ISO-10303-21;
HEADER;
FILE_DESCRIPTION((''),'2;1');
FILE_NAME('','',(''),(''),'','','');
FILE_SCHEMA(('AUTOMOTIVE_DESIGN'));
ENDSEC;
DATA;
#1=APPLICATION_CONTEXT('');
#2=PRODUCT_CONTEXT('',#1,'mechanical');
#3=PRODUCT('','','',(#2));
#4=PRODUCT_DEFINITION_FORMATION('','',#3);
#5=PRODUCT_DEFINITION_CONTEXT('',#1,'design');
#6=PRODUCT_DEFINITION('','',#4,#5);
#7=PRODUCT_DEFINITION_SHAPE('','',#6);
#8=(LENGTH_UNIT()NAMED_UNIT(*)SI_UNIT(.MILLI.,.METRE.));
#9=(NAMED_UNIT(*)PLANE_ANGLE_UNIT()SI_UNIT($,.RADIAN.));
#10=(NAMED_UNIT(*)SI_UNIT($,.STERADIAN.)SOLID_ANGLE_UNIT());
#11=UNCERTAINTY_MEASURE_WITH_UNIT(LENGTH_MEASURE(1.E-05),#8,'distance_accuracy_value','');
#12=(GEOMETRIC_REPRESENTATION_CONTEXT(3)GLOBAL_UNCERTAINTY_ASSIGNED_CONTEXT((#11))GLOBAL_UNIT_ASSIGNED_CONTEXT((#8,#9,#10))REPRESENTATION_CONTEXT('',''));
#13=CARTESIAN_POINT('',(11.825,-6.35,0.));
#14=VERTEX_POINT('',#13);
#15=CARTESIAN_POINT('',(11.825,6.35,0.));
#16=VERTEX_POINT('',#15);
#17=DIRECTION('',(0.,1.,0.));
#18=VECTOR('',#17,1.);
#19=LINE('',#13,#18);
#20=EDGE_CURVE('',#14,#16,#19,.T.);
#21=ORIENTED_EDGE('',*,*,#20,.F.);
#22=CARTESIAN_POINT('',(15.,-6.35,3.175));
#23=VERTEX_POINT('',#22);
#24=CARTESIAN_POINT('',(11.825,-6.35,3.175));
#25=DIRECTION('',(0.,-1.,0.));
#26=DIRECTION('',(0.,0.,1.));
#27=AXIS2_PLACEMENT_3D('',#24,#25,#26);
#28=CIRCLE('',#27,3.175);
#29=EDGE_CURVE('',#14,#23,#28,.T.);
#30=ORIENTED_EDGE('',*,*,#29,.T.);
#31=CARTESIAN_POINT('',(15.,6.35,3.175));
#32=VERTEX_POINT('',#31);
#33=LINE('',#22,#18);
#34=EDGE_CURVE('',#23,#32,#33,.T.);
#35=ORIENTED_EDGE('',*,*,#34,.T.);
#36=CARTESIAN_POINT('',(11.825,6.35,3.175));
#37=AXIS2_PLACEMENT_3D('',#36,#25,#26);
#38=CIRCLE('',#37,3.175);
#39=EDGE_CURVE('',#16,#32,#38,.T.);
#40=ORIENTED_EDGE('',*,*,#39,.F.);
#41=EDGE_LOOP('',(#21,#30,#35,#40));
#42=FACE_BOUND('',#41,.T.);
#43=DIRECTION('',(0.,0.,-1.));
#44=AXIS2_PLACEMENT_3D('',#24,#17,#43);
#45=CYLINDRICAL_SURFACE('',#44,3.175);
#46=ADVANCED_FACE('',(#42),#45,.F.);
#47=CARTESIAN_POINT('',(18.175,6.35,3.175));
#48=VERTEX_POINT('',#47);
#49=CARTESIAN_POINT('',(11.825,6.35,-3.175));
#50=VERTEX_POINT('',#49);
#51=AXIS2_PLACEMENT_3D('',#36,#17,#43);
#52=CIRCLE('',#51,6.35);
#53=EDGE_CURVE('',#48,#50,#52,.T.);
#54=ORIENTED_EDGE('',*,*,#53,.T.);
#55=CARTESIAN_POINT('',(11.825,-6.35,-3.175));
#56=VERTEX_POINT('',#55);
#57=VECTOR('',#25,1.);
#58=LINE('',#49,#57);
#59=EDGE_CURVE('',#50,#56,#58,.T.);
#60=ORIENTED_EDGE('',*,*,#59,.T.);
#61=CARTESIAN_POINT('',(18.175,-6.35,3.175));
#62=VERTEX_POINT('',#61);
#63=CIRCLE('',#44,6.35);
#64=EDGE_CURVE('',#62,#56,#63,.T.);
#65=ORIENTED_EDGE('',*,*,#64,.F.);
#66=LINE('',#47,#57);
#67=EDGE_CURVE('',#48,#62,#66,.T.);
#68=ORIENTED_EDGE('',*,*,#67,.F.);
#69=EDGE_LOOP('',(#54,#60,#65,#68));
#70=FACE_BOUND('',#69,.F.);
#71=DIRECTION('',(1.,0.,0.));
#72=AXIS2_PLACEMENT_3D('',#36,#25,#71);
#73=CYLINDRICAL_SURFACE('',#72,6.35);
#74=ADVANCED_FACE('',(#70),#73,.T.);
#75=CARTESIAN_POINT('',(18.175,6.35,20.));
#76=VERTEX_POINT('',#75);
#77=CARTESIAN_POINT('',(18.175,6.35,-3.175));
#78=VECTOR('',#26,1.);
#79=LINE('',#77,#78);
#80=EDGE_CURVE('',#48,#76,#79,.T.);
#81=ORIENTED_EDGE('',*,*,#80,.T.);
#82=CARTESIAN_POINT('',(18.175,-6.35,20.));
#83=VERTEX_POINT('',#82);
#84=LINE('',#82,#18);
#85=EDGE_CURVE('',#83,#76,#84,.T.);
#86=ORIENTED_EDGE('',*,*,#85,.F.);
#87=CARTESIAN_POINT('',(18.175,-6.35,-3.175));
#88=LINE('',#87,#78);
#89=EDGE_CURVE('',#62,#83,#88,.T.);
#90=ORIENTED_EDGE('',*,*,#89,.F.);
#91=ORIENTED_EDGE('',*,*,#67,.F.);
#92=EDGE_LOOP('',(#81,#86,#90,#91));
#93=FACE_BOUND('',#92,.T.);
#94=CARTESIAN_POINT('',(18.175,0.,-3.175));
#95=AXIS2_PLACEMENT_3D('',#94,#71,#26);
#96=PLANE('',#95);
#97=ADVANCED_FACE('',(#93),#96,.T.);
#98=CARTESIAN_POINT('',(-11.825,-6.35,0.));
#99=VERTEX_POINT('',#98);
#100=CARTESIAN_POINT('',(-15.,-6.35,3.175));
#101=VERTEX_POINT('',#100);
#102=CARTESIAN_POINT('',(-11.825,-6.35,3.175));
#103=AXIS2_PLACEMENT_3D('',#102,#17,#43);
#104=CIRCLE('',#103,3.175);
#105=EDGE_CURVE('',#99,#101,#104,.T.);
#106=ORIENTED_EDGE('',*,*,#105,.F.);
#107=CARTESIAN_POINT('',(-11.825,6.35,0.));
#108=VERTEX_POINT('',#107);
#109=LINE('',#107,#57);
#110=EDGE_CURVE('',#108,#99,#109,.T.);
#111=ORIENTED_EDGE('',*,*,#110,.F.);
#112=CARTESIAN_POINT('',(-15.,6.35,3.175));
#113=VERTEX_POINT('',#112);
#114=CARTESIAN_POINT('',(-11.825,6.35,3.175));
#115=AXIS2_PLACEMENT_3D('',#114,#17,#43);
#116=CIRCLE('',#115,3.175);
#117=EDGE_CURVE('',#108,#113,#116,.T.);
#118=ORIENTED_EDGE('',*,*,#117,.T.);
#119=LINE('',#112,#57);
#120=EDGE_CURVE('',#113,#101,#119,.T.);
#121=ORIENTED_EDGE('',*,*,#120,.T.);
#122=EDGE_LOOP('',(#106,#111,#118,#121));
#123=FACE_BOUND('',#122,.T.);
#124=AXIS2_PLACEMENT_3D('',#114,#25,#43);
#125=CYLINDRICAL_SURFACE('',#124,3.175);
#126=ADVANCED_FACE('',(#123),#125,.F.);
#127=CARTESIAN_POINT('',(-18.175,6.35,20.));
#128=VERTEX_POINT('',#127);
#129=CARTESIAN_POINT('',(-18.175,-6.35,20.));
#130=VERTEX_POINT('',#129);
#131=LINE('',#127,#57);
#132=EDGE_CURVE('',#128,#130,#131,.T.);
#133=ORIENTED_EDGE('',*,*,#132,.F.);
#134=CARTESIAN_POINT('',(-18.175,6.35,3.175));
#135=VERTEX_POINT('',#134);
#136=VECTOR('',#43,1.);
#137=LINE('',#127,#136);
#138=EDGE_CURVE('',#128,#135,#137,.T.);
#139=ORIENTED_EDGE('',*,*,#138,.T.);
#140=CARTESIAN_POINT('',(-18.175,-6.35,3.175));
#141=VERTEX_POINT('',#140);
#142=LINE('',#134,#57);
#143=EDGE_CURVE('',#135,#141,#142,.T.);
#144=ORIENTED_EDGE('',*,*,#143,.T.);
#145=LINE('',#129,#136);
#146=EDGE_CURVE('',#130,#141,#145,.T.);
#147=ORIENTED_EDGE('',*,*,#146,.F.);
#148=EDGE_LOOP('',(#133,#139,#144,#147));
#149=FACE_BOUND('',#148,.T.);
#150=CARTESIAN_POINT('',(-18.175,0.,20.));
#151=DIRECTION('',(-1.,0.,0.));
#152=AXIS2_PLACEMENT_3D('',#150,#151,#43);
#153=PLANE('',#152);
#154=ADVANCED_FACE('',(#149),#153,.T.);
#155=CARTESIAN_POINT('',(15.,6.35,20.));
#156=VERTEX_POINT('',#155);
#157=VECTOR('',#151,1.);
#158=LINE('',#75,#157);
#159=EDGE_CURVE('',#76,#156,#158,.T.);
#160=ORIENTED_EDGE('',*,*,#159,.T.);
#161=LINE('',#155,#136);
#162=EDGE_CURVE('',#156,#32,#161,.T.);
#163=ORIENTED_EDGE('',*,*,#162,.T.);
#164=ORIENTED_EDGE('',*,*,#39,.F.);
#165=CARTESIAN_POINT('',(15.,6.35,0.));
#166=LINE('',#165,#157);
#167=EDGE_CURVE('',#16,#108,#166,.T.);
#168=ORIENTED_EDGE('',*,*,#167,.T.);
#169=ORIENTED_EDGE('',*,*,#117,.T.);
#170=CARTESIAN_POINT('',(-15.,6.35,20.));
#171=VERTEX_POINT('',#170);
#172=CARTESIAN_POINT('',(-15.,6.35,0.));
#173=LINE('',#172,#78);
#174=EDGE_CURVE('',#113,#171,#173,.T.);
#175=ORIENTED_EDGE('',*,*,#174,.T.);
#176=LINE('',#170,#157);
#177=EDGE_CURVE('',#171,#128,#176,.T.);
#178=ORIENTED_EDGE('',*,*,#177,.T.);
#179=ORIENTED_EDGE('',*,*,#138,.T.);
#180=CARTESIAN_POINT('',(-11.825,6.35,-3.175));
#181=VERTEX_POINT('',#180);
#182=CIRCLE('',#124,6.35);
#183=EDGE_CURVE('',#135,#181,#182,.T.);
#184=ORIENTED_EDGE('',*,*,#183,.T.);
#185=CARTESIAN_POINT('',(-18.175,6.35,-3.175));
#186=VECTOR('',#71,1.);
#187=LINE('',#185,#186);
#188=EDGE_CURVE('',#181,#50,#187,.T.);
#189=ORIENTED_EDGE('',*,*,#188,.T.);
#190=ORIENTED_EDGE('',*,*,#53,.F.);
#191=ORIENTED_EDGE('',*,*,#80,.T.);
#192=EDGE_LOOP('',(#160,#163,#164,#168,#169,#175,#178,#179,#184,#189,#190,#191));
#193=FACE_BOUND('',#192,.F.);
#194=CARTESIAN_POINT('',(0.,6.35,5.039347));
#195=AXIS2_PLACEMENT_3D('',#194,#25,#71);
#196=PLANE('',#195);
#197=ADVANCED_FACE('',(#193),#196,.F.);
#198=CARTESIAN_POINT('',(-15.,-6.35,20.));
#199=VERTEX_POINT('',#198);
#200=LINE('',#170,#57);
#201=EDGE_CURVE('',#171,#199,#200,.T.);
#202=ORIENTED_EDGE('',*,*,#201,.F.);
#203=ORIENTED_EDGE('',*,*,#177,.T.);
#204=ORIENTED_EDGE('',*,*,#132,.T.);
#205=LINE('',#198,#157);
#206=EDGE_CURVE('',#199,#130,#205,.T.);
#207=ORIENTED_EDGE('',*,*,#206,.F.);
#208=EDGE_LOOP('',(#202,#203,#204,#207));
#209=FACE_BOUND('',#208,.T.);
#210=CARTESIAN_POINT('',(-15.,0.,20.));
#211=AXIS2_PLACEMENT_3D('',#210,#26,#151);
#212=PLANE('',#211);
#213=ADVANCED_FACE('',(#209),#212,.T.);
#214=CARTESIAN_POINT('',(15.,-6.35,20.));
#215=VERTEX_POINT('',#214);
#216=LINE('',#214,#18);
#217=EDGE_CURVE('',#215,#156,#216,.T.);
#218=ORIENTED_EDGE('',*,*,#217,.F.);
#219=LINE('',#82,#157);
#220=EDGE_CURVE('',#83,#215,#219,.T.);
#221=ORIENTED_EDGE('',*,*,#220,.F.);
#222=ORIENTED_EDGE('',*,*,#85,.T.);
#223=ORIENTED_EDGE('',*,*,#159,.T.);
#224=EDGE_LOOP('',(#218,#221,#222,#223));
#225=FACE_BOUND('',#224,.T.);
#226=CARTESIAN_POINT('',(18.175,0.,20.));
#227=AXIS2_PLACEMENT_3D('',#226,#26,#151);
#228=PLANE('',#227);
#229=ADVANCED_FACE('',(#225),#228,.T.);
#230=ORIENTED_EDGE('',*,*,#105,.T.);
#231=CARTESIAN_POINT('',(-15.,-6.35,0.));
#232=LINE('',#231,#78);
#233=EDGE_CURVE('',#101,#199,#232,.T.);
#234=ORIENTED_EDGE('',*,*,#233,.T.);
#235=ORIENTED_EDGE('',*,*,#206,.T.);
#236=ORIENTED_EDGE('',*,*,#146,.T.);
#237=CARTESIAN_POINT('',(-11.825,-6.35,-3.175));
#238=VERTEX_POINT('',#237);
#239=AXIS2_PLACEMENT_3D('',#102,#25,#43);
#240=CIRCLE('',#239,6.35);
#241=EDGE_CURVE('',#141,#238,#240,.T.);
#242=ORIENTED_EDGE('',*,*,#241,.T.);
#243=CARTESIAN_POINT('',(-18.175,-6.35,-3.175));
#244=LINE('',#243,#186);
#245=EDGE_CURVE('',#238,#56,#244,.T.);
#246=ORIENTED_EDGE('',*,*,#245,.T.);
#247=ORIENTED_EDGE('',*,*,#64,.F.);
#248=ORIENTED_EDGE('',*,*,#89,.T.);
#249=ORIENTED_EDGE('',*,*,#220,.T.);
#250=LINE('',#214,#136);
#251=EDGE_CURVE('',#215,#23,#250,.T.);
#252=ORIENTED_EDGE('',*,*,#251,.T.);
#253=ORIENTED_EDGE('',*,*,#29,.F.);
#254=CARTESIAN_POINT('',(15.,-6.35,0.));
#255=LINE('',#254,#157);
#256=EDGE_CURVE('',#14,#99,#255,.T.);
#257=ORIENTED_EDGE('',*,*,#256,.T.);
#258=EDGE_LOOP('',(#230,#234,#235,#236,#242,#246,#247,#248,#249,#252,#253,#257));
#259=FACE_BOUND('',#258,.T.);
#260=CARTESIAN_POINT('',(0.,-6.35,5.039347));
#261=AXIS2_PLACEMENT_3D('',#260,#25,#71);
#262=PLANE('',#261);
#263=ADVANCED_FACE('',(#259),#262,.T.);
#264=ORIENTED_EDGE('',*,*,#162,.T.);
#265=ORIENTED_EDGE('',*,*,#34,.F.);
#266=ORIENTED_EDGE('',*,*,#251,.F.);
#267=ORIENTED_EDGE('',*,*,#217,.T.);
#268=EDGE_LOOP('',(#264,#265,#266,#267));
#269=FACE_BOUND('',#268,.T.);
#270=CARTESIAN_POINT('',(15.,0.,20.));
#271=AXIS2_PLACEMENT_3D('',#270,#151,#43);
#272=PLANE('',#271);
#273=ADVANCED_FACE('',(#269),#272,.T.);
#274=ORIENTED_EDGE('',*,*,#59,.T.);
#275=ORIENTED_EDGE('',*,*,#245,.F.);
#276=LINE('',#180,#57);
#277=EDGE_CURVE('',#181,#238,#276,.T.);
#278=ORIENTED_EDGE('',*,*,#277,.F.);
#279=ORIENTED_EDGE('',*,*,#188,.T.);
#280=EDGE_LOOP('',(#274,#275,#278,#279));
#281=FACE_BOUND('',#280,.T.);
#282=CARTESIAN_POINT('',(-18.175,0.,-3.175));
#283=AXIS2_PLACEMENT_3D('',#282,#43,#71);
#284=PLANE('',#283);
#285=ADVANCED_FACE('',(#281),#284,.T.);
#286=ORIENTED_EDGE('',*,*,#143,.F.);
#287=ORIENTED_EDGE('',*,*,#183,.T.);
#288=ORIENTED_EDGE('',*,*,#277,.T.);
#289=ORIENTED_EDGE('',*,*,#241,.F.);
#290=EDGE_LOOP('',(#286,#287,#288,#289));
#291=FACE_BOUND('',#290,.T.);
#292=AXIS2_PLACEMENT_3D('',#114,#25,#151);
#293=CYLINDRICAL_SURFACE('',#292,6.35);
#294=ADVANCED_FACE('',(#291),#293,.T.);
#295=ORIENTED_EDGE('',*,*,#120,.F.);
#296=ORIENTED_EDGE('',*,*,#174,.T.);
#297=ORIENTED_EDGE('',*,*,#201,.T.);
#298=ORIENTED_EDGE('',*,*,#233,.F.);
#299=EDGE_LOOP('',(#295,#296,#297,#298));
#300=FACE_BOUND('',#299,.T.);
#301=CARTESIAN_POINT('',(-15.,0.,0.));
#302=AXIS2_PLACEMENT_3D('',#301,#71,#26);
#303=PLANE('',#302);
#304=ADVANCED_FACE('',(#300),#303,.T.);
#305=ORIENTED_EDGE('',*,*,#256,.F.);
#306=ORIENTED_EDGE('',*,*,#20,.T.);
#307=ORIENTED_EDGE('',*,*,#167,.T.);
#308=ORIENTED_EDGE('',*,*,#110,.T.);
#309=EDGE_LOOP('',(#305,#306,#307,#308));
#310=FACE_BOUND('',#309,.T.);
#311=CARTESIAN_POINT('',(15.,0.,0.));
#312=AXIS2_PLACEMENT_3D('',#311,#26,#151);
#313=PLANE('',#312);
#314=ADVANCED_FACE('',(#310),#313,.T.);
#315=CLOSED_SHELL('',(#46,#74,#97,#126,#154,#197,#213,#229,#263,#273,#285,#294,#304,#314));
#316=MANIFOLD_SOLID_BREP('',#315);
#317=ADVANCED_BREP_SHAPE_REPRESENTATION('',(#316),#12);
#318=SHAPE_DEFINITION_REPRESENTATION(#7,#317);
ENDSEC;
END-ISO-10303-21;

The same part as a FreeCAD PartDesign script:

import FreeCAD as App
import Part
import Sketcher

V = App.Vector


def edges_at(feature, points):
    """Names of the edges that pass closest to the given points."""
    edges = feature.Shape.Edges
    near = lambda p: min(range(len(edges)), key=lambda i: edges[i].distToShape(Part.Vertex(*p))[0])
    return sorted({f"Edge{near(p) + 1}" for p in points})

doc = App.newDocument("Part")
params = doc.addObject("Spreadsheet::Sheet", "Params")
for row, (alias, value) in enumerate([
    ("sketch1_width", "30 mm"),
    ("sketch1_height", "20 mm"),
    ("sketch1_width2", "36.35 mm"),
    ("pad1_length", "12.7 mm"),
    ("fillet_radius", "3.175 mm"),
    ("fillet2_radius", "6.35 mm"),
], start=1):
    params.set(f"A{row}", alias)
    params.set(f"B{row}", "=" + value)
    params.setAlias(f"B{row}", alias)

body = doc.addObject("PartDesign::Body", "Body")

# Sketch on XZ plane
sketch1 = body.newObject("Sketcher::SketchObject", "Sketch")
sketch1.AttachmentSupport = (doc.getObject("XZ_Plane"), [""])
sketch1.MapMode = "FlatFace"
sketch1.addGeometry([
    Part.LineSegment(V(15, 0, 0), V(-15, 0, 0)),  # 0
    Part.LineSegment(V(-15, 0, 0), V(-15, 20, 0)),  # 1
    Part.LineSegment(V(-15, 20, 0), V(-18.175, 20, 0)),  # 2
    Part.LineSegment(V(-18.175, 20, 0), V(-18.175, -3.175, 0)),  # 3
    Part.LineSegment(V(-18.175, -3.175, 0), V(18.175, -3.175, 0)),  # 4
    Part.LineSegment(V(18.175, -3.175, 0), V(18.175, 20, 0)),  # 5
    Part.LineSegment(V(18.175, 20, 0), V(15, 20, 0)),  # 6
    Part.LineSegment(V(15, 20, 0), V(15, 0, 0)),  # 7
], False)
sketch1.addConstraint([
    Sketcher.Constraint("Coincident", 0, 2, 1, 1),
    Sketcher.Constraint("Coincident", 1, 2, 2, 1),
    Sketcher.Constraint("Coincident", 2, 2, 3, 1),
    Sketcher.Constraint("Coincident", 3, 2, 4, 1),
    Sketcher.Constraint("Coincident", 4, 2, 5, 1),
    Sketcher.Constraint("Coincident", 5, 2, 6, 1),
    Sketcher.Constraint("Coincident", 6, 2, 7, 1),
    Sketcher.Constraint("Coincident", 7, 2, 0, 1),
    Sketcher.Constraint("Horizontal", 0),
    Sketcher.Constraint("Vertical", 1),
    Sketcher.Constraint("Horizontal", 2),
    Sketcher.Constraint("Vertical", 3),
    Sketcher.Constraint("Horizontal", 4),
    Sketcher.Constraint("Vertical", 5),
    Sketcher.Constraint("Horizontal", 6),
    Sketcher.Constraint("Vertical", 7),
    Sketcher.Constraint("Symmetric", 0, 2, 7, 2, -1, 1),
    Sketcher.Constraint("Symmetric", 2, 2, 5, 2, -2),
    Sketcher.Constraint("DistanceX", 0, 2, 0, 1, 30.0),
    Sketcher.Constraint("DistanceY", 1, 1, 1, 2, 20.0),
    Sketcher.Constraint("DistanceX", 4, 1, 4, 2, 36.35),
    Sketcher.Constraint("DistanceY", 3, 2, 3, 1, 23.175),
])
sketch1.setExpression("Constraints[18]", "Params.sketch1_width")
sketch1.setExpression("Constraints[19]", "Params.sketch1_height")
sketch1.setExpression("Constraints[20]", "Params.sketch1_width2")
pad1 = body.newObject("PartDesign::Pad", "Pad")
pad1.Profile = sketch1
pad1.setExpression("Length", "Params.pad1_length")
pad1.Midplane = True
doc.recompute()

fillet = body.newObject("PartDesign::Fillet", "Fillet")
fillet.Base = (pad1, edges_at(pad1, [(15, 0, 0), (-15, 0, 0)]))
fillet.setExpression("Radius", "Params.fillet_radius")
doc.recompute()

fillet2 = body.newObject("PartDesign::Fillet", "Fillet001")
fillet2.Base = (fillet, edges_at(fillet, [(-18.175, 0, -3.175), (18.175, 0, -3.175)]))
fillet2.setExpression("Radius", "Params.fillet2_radius")

doc.recompute()
